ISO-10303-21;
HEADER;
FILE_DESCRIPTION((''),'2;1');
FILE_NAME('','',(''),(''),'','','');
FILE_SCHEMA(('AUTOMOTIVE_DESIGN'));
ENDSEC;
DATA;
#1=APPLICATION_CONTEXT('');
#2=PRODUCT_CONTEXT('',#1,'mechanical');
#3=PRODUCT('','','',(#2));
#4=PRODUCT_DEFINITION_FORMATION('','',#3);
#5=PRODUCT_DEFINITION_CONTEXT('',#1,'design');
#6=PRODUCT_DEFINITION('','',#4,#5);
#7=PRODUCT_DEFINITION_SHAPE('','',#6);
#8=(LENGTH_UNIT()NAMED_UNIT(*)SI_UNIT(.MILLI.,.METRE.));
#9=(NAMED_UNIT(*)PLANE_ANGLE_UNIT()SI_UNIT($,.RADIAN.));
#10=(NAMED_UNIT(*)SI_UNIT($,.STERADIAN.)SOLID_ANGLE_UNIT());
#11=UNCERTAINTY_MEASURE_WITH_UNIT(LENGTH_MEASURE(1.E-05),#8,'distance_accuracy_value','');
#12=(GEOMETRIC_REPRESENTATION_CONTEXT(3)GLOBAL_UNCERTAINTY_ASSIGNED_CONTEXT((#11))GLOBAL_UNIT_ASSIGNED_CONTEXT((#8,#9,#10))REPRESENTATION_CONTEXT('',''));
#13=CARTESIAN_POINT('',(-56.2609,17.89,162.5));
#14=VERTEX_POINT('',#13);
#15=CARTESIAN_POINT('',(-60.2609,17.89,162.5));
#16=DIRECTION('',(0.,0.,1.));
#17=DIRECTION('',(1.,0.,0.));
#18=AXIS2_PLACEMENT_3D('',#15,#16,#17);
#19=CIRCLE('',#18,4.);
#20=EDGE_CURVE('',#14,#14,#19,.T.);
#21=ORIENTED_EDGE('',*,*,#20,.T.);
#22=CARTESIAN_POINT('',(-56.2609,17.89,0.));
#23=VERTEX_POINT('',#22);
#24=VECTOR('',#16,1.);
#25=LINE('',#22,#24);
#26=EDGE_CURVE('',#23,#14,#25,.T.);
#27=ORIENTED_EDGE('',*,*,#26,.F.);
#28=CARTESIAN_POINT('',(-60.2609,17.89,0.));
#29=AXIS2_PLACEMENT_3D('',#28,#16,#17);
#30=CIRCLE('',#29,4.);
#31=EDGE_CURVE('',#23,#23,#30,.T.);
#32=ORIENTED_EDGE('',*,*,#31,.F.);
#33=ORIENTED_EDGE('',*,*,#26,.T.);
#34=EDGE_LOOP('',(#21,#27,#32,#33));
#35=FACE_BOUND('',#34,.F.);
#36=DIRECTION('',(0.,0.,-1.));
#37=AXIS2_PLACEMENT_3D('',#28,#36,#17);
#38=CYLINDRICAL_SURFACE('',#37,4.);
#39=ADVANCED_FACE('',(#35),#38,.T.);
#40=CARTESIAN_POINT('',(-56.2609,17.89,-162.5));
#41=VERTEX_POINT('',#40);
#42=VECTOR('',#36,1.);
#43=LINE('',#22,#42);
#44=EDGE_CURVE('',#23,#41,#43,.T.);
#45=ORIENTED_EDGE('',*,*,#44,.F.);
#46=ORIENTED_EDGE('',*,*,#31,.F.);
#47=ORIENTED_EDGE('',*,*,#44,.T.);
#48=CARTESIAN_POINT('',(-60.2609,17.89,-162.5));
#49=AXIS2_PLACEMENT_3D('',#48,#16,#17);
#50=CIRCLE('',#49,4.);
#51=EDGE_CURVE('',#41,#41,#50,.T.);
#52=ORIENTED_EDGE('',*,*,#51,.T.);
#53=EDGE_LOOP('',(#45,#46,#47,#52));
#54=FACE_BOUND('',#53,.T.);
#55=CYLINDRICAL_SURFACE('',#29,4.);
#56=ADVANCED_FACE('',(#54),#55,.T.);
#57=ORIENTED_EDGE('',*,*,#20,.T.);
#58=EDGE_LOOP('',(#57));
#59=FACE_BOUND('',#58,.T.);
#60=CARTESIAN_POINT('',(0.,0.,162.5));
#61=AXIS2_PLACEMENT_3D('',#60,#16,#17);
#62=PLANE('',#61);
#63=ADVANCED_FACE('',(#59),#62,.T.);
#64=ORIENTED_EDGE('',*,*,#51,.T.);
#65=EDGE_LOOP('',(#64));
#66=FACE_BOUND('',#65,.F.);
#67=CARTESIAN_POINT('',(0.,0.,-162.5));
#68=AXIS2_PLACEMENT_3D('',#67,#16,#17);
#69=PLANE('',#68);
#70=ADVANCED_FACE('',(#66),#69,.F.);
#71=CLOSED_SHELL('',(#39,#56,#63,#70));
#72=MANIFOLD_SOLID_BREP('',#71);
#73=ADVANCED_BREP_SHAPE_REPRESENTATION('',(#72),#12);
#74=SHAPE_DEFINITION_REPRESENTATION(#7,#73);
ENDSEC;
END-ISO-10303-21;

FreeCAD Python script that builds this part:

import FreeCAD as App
import Part
import Sketcher
from FreeCAD import Vector
Q = App.Units.Quantity

doc = App.newDocument("Part")
body = doc.addObject("PartDesign::Body", "Body")

# Sketch on XY plane
sketch1 = doc.addObject("Sketcher::SketchObject", "Sketch")
body.addObject(sketch1)
sketch1.AttachmentSupport = (doc.XY_Plane, [""])
sketch1.MapMode = "FlatFace"
sketch1.addGeometry(Part.Circle(Vector(-60.2609, 17.89, 0), Vector(0, 0, 1), 4), False)
sketch1.addConstraint(Sketcher.Constraint("Diameter", 0, Q("8 mm")))
sketch1.addConstraint(Sketcher.Constraint("DistanceY", -1, 1, 0, 3, Q("17.89 mm")))
sketch1.addConstraint(Sketcher.Constraint("DistanceX", 0, 3, -1, 1, Q("60.261 mm")))
pad1 = doc.addObject("PartDesign::Pad", "Pad")
body.addObject(pad1)
pad1.Profile = sketch1
pad1.Length = 325
pad1.Midplane = True

doc.recompute()
